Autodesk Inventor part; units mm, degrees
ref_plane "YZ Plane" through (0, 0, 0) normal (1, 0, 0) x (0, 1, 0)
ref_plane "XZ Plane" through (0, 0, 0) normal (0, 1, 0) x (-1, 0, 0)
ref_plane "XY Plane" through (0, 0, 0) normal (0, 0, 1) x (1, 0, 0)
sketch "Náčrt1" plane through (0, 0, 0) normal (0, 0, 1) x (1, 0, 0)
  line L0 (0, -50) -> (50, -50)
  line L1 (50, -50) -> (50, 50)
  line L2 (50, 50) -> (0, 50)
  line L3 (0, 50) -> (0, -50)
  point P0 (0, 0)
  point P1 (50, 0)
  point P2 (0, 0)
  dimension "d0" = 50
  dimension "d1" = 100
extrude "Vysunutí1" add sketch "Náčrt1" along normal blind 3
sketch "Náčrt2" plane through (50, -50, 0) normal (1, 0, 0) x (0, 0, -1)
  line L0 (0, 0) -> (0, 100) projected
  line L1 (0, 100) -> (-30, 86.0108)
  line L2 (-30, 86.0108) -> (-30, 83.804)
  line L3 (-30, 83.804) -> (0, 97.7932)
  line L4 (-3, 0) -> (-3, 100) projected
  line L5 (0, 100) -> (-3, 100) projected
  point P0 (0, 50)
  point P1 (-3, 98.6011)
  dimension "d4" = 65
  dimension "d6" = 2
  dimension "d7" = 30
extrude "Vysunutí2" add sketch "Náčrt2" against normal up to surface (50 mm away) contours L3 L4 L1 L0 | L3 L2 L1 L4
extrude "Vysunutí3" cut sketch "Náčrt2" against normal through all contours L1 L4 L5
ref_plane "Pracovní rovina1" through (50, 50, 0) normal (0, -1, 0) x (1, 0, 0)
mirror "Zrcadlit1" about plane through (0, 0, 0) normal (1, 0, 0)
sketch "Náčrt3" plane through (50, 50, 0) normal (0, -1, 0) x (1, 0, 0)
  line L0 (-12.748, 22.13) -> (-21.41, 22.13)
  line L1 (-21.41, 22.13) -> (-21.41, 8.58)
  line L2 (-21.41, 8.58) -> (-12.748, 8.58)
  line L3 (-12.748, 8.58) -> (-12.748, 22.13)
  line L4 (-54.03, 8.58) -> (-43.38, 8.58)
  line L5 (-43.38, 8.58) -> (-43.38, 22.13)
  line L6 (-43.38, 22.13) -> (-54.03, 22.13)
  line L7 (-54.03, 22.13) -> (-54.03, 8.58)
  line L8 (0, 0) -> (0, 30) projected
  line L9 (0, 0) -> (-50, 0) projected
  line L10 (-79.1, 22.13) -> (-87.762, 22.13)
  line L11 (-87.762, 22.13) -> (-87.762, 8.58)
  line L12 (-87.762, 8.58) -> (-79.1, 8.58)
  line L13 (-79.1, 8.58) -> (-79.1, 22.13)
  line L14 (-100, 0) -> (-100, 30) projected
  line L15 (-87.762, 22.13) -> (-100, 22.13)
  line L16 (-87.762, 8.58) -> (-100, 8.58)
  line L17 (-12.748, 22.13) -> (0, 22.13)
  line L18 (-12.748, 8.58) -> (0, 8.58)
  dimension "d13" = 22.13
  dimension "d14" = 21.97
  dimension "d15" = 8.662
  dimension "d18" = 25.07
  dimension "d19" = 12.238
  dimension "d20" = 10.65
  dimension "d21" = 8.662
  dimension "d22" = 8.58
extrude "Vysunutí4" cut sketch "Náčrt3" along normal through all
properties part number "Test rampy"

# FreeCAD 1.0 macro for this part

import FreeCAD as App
import Part
import Sketcher
Q = App.Units.Quantity


def add_polygon(sketch, points):
    """Adds a closed chain of lines whose ends are joined by coincident constraints."""
    first, n = sketch.GeometryCount, len(points)
    for a, b in zip(points, points[1:] + points[:1]):
        sketch.addGeometry(Part.LineSegment(App.Vector(*a, 0), App.Vector(*b, 0)), False)
    for i in range(n):
        sketch.addConstraint(Sketcher.Constraint("Coincident", first + i, 2, first + (i + 1) % n, 1))

doc = App.newDocument("Part")
body = doc.addObject("PartDesign::Body", "Body")

# Sketch on XY plane
sketch1 = doc.addObject("Sketcher::SketchObject", "Sketch")
body.addObject(sketch1)
sketch1.AttachmentSupport = (doc.XY_Plane, [""])
sketch1.MapMode = "FlatFace"
add_polygon(sketch1, [(0, 50), (0, -50), (50, -50), (50, 50)])  # lines 0-3
sketch1.addConstraint(Sketcher.Constraint("Vertical", 0))
sketch1.addConstraint(Sketcher.Constraint("Horizontal", 1))
sketch1.addConstraint(Sketcher.Constraint("Vertical", 2))
sketch1.addConstraint(Sketcher.Constraint("Horizontal", 3))
sketch1.addConstraint(Sketcher.Constraint("Symmetric", 0, 2, 3, 2, -1, 1))
sketch1.addConstraint(Sketcher.Constraint("DistanceX", 1, 1, 1, 2, 50.0))
sketch1.addConstraint(Sketcher.Constraint("DistanceY", 0, 2, 0, 1, 100.0))
pad1 = doc.addObject("PartDesign::Pad", "Pad")
body.addObject(pad1)
pad1.Profile = sketch1
pad1.Length = 3

# Sketch on YZ plane
sketch2 = doc.addObject("Sketcher::SketchObject", "Sketch001")
body.addObject(sketch2)
sketch2.AttachmentSupport = (doc.YZ_Plane, [""])
sketch2.MapMode = "FlatFace"
sketch2.AttachmentOffset = App.Placement(App.Vector(0, 0, 50), App.Rotation())
add_polygon(sketch2, [(47.8, 0), (50, 0), (36, 30), (33.8, 30)])  # lines 0-3
sketch2.addConstraint(Sketcher.Constraint("Horizontal", 0))
sketch2.addConstraint(Sketcher.Constraint("Horizontal", 2))
sketch2.addConstraint(Sketcher.Constraint("PointOnObject", 0, 2, -1))
sketch2.addConstraint(Sketcher.Constraint("Parallel", 1, 3))
sketch2.addConstraint(Sketcher.Constraint("Angle", 3, Q("-65 deg")))
sketch2.addConstraint(Sketcher.Constraint("DistanceY", -1, 1, 1, 2, 30.0))
sketch2.addConstraint(Sketcher.Constraint("DistanceX", -1, 1, 0, 2, 50.0))
sketch2.addConstraint(Sketcher.Constraint("DistanceX", 0, 1, 0, 2, 2.2068))
pad2 = doc.addObject("PartDesign::Pad", "Pad001")
body.addObject(pad2)
pad2.Profile = sketch2
pad2.Length = 50
pad2.Reversed = True

# Sketch on YZ plane
sketch3 = doc.addObject("Sketcher::SketchObject", "Sketch002")
body.addObject(sketch3)
sketch3.AttachmentSupport = (doc.YZ_Plane, [""])
sketch3.MapMode = "FlatFace"
sketch3.AttachmentOffset = App.Placement(App.Vector(0, 0, 50), App.Rotation())
add_polygon(sketch3, [(48.6, 3), (50, 0), (50, 3)])  # lines 0-2
sketch3.addConstraint(Sketcher.Constraint("Vertical", 1))
sketch3.addConstraint(Sketcher.Constraint("Horizontal", 2))
sketch3.addConstraint(Sketcher.Constraint("PointOnObject", 0, 2, -1))
sketch3.addConstraint(Sketcher.Constraint("Angle", 0, Q("-65 deg")))
sketch3.addConstraint(Sketcher.Constraint("DistanceY", 1, 1, 1, 2, 3.0))
sketch3.addConstraint(Sketcher.Constraint("DistanceX", -1, 1, 0, 2, 50.0))
pocket1 = doc.addObject("PartDesign::Pocket", "Pocket")
body.addObject(pocket1)
pocket1.Profile = sketch3
pocket1.Type = "ThroughAll"
doc.recompute()

mirrored = doc.addObject("PartDesign::Mirrored", "Mirrored")
body.addObject(mirrored)
mirrored.TransformMode = "Transform body"
mirrored.MirrorPlane = (doc.YZ_Plane, [""])
body.Tip = mirrored

# Sketch on XZ plane
sketch4 = doc.addObject("Sketcher::SketchObject", "Sketch003")
body.addObject(sketch4)
sketch4.AttachmentSupport = (doc.XZ_Plane, [""])
sketch4.MapMode = "FlatFace"
sketch4.AttachmentOffset = App.Placement(App.Vector(0, 0, -50), App.Rotation())
add_polygon(sketch4, [(29, 9), (50, 9), (50, 22), (29, 22)])  # lines 0-3
add_polygon(sketch4, [(-4, 22), (-4, 9), (7, 9), (7, 22)])  # lines 4-7
add_polygon(sketch4, [(-29, 9), (-29, 22), (-50, 22), (-50, 9)])  # lines 8-11
sketch4.addConstraint(Sketcher.Constraint("Horizontal", 0))
sketch4.addConstraint(Sketcher.Constraint("Vertical", 1))
sketch4.addConstraint(Sketcher.Constraint("Horizontal", 2))
sketch4.addConstraint(Sketcher.Constraint("Vertical", 3))
sketch4.addConstraint(Sketcher.Constraint("Vertical", 4))
sketch4.addConstraint(Sketcher.Constraint("Horizontal", 5))
sketch4.addConstraint(Sketcher.Constraint("Vertical", 6))
sketch4.addConstraint(Sketcher.Constraint("Horizontal", 7))
sketch4.addConstraint(Sketcher.Constraint("Vertical", 8))
sketch4.addConstraint(Sketcher.Constraint("Horizontal", 9))
sketch4.addConstraint(Sketcher.Constraint("Vertical", 10))
sketch4.addConstraint(Sketcher.Constraint("Horizontal", 11))
sketch4.addConstraint(Sketcher.Constraint("Symmetric", 1, 2, 9, 2, -2))
sketch4.addConstraint(Sketcher.Constraint("Horizontal", 3, 2, 4, 2))
sketch4.addConstraint(Sketcher.Constraint("Horizontal", 2, 2, 6, 2))
sketch4.addConstraint(Sketcher.Constraint("Horizontal", 5, 2, 10, 2))
sketch4.addConstraint(Sketcher.Constraint("DistanceX", 5, 1, 5, 2, 10.65))
sketch4.addConstraint(Sketcher.Constraint("DistanceY", -1, 1, 0, 2, 8.58))
sketch4.addConstraint(Sketcher.Constraint("DistanceY", -1, 1, 1, 2, 22.13))
sketch4.addConstraint(Sketcher.Constraint("DistanceX", 5, 2, 3, 2, 21.97))
sketch4.addConstraint(Sketcher.Constraint("DistanceX", 8, 2, 7, 2, 25.07))
sketch4.addConstraint(Sketcher.Constraint("DistanceX", 9, 2, 9, 1, 20.9))
sketch4.addConstraint(Sketcher.Constraint("DistanceX", -1, 1, 0, 2, 50.0))
pocket2 = doc.addObject("PartDesign::Pocket", "Pocket001")
body.addObject(pocket2)
pocket2.Profile = sketch4
pocket2.Type = "ThroughAll"
pocket2.Reversed = True

doc.recompute()
